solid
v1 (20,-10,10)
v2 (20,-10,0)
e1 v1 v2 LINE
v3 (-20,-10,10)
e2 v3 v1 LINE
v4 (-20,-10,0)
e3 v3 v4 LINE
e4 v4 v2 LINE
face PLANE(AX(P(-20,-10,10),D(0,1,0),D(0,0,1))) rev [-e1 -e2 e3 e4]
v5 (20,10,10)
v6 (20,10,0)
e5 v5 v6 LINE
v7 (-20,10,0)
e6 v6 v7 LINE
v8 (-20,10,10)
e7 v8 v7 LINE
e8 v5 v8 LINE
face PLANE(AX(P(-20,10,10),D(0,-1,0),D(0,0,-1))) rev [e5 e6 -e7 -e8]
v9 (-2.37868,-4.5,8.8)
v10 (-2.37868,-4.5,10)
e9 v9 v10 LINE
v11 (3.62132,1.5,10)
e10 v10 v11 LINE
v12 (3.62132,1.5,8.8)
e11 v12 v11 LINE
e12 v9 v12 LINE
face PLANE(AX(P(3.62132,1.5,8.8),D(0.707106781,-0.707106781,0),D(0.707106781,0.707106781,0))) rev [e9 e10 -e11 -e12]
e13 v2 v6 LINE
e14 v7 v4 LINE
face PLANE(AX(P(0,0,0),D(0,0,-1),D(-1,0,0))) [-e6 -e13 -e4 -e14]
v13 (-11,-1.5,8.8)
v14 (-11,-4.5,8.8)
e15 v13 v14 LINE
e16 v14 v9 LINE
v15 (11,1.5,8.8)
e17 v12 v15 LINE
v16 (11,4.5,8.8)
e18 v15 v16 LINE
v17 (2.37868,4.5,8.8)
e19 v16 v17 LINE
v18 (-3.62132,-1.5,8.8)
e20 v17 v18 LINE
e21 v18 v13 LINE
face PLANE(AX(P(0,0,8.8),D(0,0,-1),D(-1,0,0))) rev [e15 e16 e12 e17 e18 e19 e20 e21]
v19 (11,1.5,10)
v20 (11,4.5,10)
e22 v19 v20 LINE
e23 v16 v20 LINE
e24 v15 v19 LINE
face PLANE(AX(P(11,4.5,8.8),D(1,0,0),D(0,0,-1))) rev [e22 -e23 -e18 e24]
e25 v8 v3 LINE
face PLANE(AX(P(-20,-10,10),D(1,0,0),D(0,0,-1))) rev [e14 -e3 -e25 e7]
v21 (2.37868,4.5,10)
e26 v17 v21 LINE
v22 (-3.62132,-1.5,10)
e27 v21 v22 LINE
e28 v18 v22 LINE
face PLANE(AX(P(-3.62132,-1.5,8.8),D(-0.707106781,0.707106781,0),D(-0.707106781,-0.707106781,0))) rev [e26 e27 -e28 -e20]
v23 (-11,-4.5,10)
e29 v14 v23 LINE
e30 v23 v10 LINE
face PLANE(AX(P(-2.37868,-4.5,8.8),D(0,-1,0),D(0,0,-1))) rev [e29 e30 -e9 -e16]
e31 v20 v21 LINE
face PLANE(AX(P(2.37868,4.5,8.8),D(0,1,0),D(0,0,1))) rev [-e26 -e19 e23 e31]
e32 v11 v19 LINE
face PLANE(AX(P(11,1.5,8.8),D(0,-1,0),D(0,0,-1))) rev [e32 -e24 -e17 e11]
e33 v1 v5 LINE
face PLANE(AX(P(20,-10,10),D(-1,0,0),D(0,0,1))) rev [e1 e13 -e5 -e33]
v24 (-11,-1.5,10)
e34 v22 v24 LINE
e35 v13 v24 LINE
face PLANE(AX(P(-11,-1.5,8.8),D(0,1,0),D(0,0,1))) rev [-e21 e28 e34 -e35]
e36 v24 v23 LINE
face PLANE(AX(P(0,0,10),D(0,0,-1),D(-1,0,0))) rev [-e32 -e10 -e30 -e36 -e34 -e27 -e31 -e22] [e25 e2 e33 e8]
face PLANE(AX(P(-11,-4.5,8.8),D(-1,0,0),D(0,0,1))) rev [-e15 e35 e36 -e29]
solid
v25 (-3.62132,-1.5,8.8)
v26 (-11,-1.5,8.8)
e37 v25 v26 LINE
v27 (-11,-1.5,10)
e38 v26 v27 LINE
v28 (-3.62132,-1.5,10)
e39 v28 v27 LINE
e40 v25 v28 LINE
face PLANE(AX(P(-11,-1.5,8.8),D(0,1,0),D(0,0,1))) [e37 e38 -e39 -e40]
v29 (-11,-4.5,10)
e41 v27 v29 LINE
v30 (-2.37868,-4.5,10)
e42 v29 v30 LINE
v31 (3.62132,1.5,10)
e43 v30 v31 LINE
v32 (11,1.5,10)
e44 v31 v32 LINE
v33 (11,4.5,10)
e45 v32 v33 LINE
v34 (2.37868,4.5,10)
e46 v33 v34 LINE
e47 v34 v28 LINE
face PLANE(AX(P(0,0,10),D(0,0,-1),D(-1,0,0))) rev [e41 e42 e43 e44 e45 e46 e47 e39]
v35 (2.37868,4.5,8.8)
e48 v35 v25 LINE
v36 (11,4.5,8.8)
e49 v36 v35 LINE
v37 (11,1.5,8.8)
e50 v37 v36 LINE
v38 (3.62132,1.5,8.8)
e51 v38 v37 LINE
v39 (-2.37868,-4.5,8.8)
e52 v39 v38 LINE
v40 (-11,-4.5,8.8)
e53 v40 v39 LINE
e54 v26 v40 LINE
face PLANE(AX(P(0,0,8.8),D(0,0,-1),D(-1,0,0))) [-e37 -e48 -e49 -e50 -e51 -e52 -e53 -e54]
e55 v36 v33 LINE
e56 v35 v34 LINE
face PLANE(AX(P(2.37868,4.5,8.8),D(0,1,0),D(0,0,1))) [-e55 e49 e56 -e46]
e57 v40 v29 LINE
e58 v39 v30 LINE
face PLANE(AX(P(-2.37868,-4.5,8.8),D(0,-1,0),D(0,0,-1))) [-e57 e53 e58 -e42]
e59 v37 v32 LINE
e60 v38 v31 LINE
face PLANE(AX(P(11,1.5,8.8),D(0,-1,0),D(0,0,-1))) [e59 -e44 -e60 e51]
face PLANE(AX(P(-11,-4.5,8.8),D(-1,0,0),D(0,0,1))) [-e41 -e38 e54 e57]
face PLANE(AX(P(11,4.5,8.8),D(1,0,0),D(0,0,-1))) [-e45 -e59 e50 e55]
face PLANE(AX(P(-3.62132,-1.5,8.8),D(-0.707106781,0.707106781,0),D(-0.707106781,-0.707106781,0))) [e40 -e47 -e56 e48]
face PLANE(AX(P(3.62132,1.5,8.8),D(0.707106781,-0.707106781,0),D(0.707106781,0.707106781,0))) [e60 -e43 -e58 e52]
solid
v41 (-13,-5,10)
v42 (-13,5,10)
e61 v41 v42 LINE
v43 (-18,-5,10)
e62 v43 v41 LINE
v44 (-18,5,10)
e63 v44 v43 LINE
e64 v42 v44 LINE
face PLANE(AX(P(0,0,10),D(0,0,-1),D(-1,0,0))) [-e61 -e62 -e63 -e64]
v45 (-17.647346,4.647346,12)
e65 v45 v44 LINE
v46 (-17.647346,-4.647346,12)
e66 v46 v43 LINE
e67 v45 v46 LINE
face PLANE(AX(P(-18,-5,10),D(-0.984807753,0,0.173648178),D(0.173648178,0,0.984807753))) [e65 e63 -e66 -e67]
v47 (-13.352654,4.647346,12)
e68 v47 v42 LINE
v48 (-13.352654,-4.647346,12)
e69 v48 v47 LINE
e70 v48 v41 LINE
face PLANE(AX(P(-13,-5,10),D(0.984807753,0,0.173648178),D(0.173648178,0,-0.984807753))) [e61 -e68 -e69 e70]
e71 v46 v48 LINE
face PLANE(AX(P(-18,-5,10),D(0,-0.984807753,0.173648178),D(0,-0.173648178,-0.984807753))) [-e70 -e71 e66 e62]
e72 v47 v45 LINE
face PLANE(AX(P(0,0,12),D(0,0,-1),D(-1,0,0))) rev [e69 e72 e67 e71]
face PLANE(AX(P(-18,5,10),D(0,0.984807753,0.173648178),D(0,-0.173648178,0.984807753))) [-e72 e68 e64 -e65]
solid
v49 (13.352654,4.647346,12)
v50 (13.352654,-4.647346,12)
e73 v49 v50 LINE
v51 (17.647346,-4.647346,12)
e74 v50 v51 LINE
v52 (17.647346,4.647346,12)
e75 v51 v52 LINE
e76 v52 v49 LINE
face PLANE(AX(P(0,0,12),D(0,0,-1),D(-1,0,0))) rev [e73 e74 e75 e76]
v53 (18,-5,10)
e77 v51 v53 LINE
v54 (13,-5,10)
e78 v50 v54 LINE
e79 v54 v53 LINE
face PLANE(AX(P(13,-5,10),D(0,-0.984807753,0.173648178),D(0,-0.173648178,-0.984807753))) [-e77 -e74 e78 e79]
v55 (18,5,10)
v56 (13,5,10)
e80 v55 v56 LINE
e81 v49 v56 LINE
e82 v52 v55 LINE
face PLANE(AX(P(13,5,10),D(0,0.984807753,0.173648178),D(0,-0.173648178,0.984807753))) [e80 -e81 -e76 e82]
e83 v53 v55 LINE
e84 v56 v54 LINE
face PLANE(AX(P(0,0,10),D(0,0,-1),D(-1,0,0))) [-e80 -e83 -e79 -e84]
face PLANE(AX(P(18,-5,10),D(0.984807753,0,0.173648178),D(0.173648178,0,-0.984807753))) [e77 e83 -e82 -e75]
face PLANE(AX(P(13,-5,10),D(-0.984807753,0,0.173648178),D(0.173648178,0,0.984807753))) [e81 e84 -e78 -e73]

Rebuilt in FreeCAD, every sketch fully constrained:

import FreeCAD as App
import Part
import Sketcher
Q = App.Units.Quantity


def faces_at(feature, points):
    """Names of the faces that lie closest to the given points."""
    faces = feature.Shape.Faces
    near = lambda p: min(range(len(faces)), key=lambda i: faces[i].distToShape(Part.Vertex(*p))[0])
    return sorted({f"Face{near(p) + 1}" for p in points})

doc = App.newDocument("Part")
body = doc.addObject("PartDesign::Body", "Body")

sketch1 = doc.addObject("Sketcher::SketchObject", "Sketch")
body.addObject(sketch1)
sketch1.AttachmentSupport = (doc.XY_Plane, [""])
sketch1.MapMode = "FlatFace"
sketch1.addGeometry([
    Part.LineSegment(App.Vector(-20, 10, 0), App.Vector(-20, -10, 0)),
    Part.LineSegment(App.Vector(-20, -10, 0), App.Vector(20, -10, 0)),
    Part.LineSegment(App.Vector(20, -10, 0), App.Vector(20, 10, 0)),
    Part.LineSegment(App.Vector(20, 10, 0), App.Vector(-20, 10, 0)),
], False)
sketch1.addConstraint([
    Sketcher.Constraint("Coincident", 0, 2, 1, 1),
    Sketcher.Constraint("Coincident", 1, 2, 2, 1),
    Sketcher.Constraint("Coincident", 2, 2, 3, 1),
    Sketcher.Constraint("Coincident", 3, 2, 0, 1),
    Sketcher.Constraint("Vertical", 0),
    Sketcher.Constraint("Horizontal", 1),
    Sketcher.Constraint("Vertical", 2),
    Sketcher.Constraint("Horizontal", 3),
    Sketcher.Constraint("Symmetric", 0, 2, 2, 2, -1, 1),
    Sketcher.Constraint("DistanceX", 1, 1, 1, 2, 40.0),
    Sketcher.Constraint("DistanceY", 0, 2, 0, 1, 20.0),
])
pad1 = doc.addObject("PartDesign::Pad", "Pad")
body.addObject(pad1)
pad1.Profile = sketch1
pad1.Length = 10

sketch2 = doc.addObject("Sketcher::SketchObject", "Sketch001")
body.addObject(sketch2)
sketch2.AttachmentSupport = (doc.XY_Plane, [""])
sketch2.MapMode = "FlatFace"
sketch2.AttachmentOffset = App.Placement(App.Vector(0, 0, 10), App.Rotation())
sketch2.addGeometry([
    Part.LineSegment(App.Vector(2.4, 4.5, 0), App.Vector(-3.6, -1.5, 0)),
    Part.LineSegment(App.Vector(-3.6, -1.5, 0), App.Vector(-11, -1.5, 0)),
    Part.LineSegment(App.Vector(-11, -1.5, 0), App.Vector(-11, -4.5, 0)),
    Part.LineSegment(App.Vector(-11, -4.5, 0), App.Vector(-2.4, -4.5, 0)),
    Part.LineSegment(App.Vector(-2.4, -4.5, 0), App.Vector(3.6, 1.5, 0)),
    Part.LineSegment(App.Vector(3.6, 1.5, 0), App.Vector(11, 1.5, 0)),
    Part.LineSegment(App.Vector(11, 1.5, 0), App.Vector(11, 4.5, 0)),
    Part.LineSegment(App.Vector(11, 4.5, 0), App.Vector(2.4, 4.5, 0)),
], False)
sketch2.addConstraint([
    Sketcher.Constraint("Coincident", 0, 2, 1, 1),
    Sketcher.Constraint("Coincident", 1, 2, 2, 1),
    Sketcher.Constraint("Coincident", 2, 2, 3, 1),
    Sketcher.Constraint("Coincident", 3, 2, 4, 1),
    Sketcher.Constraint("Coincident", 4, 2, 5, 1),
    Sketcher.Constraint("Coincident", 5, 2, 6, 1),
    Sketcher.Constraint("Coincident", 6, 2, 7, 1),
    Sketcher.Constraint("Coincident", 7, 2, 0, 1),
    Sketcher.Constraint("Horizontal", 1),
    Sketcher.Constraint("Vertical", 2),
    Sketcher.Constraint("Horizontal", 3),
    Sketcher.Constraint("Horizontal", 5),
    Sketcher.Constraint("Vertical", 6),
    Sketcher.Constraint("Horizontal", 7),
    Sketcher.Constraint("Symmetric", 0, 2, 4, 2, -1, 1),
    Sketcher.Constraint("Symmetric", 2, 2, 6, 2, -1, 1),
    Sketcher.Constraint("Parallel", 0, 4),
    Sketcher.Constraint("DistanceY", 2, 2, 2, 1, 3.0),
    Sketcher.Constraint("Angle", 0, Q("-135 deg")),
    Sketcher.Constraint("DistanceX", 1, 2, -1, 1, 11.0),
    Sketcher.Constraint("DistanceY", 0, 2, 4, 2, 3.0),
    Sketcher.Constraint("DistanceX", 1, 2, 1, 1, 7.37868),
])
pocket1 = doc.addObject("PartDesign::Pocket", "Pocket")
body.addObject(pocket1)
pocket1.Profile = sketch2
pocket1.Length = 1.2
body2 = doc.addObject("PartDesign::Body", "Body001")

sketch3 = doc.addObject("Sketcher::SketchObject", "Sketch002")
body2.addObject(sketch3)
sketch3.AttachmentSupport = (doc.getObject("XY_Plane001"), [""])
sketch3.MapMode = "FlatFace"
sketch3.AttachmentOffset = App.Placement(App.Vector(0, 0, 10), App.Rotation())
sketch3.addGeometry([
    Part.LineSegment(App.Vector(2.4, 4.5, 0), App.Vector(-3.6, -1.5, 0)),
    Part.LineSegment(App.Vector(-3.6, -1.5, 0), App.Vector(-11, -1.5, 0)),
    Part.LineSegment(App.Vector(-11, -1.5, 0), App.Vector(-11, -4.5, 0)),
    Part.LineSegment(App.Vector(-11, -4.5, 0), App.Vector(-2.4, -4.5, 0)),
    Part.LineSegment(App.Vector(-2.4, -4.5, 0), App.Vector(3.6, 1.5, 0)),
    Part.LineSegment(App.Vector(3.6, 1.5, 0), App.Vector(11, 1.5, 0)),
    Part.LineSegment(App.Vector(11, 1.5, 0), App.Vector(11, 4.5, 0)),
    Part.LineSegment(App.Vector(11, 4.5, 0), App.Vector(2.4, 4.5, 0)),
], False)
sketch3.addConstraint([
    Sketcher.Constraint("Coincident", 0, 2, 1, 1),
    Sketcher.Constraint("Coincident", 1, 2, 2, 1),
    Sketcher.Constraint("Coincident", 2, 2, 3, 1),
    Sketcher.Constraint("Coincident", 3, 2, 4, 1),
    Sketcher.Constraint("Coincident", 4, 2, 5, 1),
    Sketcher.Constraint("Coincident", 5, 2, 6, 1),
    Sketcher.Constraint("Coincident", 6, 2, 7, 1),
    Sketcher.Constraint("Coincident", 7, 2, 0, 1),
    Sketcher.Constraint("Horizontal", 1),
    Sketcher.Constraint("Vertical", 2),
    Sketcher.Constraint("Horizontal", 3),
    Sketcher.Constraint("Horizontal", 5),
    Sketcher.Constraint("Vertical", 6),
    Sketcher.Constraint("Horizontal", 7),
    Sketcher.Constraint("Symmetric", 0, 2, 4, 2, -1, 1),
    Sketcher.Constraint("Symmetric", 2, 2, 6, 2, -1, 1),
    Sketcher.Constraint("Parallel", 0, 4),
    Sketcher.Constraint("DistanceY", 2, 2, 2, 1, 3.0),
    Sketcher.Constraint("Angle", 0, Q("-135 deg")),
    Sketcher.Constraint("DistanceX", 1, 2, -1, 1, 11.0),
    Sketcher.Constraint("DistanceY", 0, 2, 4, 2, 3.0),
    Sketcher.Constraint("DistanceX", 1, 2, 1, 1, 7.37868),
])
pad2 = doc.addObject("PartDesign::Pad", "Pad001")
body2.addObject(pad2)
pad2.Profile = sketch3
pad2.Length = 1.2
pad2.Reversed = True
body3 = doc.addObject("PartDesign::Body", "Body002")

sketch4 = doc.addObject("Sketcher::SketchObject", "Sketch003")
body3.addObject(sketch4)
sketch4.AttachmentSupport = (doc.getObject("XY_Plane002"), [""])
sketch4.MapMode = "FlatFace"
sketch4.AttachmentOffset = App.Placement(App.Vector(0, 0, 10), App.Rotation())
sketch4.addGeometry([
    Part.LineSegment(App.Vector(-18, 5, 0), App.Vector(-18, -5, 0)),
    Part.LineSegment(App.Vector(-18, -5, 0), App.Vector(-13, -5, 0)),
    Part.LineSegment(App.Vector(-13, -5, 0), App.Vector(-13, 5, 0)),
    Part.LineSegment(App.Vector(-13, 5, 0), App.Vector(-18, 5, 0)),
], False)
sketch4.addConstraint([
    Sketcher.Constraint("Coincident", 0, 2, 1, 1),
    Sketcher.Constraint("Coincident", 1, 2, 2, 1),
    Sketcher.Constraint("Coincident", 2, 2, 3, 1),
    Sketcher.Constraint("Coincident", 3, 2, 0, 1),
    Sketcher.Constraint("Vertical", 0),
    Sketcher.Constraint("Horizontal", 1),
    Sketcher.Constraint("Vertical", 2),
    Sketcher.Constraint("Horizontal", 3),
    Sketcher.Constraint("DistanceX", 1, 1, 1, 2, 5.0),
    Sketcher.Constraint("DistanceY", 0, 2, 0, 1, 10.0),
    Sketcher.Constraint("DistanceX", 0, 2, -1, 1, 18.0),
    Sketcher.Constraint("DistanceY", 0, 2, -1, 1, 5.0),
])
pad3 = doc.addObject("PartDesign::Pad", "Pad002")
body3.addObject(pad3)
pad3.Profile = sketch4
pad3.Length = 2
doc.recompute()

datumplane = doc.addObject("PartDesign::Plane", "DatumPlane")
body3.addObject(datumplane)
datumplane.AttachmentSupport = (doc.getObject("XY_Plane002"), [""])
datumplane.MapMode = "FlatFace"
datumplane.AttachmentOffset = App.Placement(App.Vector(0, 0, 10), App.Rotation())
draft = doc.addObject("PartDesign::Draft", "Draft")
body3.addObject(draft)
draft.Base = (pad3, faces_at(pad3, [
    (-15.5, -5, 11),
    (-13, 0, 11),
    (-15.5, 5, 11),
    (-18, 0, 11),
]))
draft.NeutralPlane = (datumplane, [""])
draft.Angle = 10
draft.Reversed = False
body4 = doc.addObject("PartDesign::Body", "Body003")

sketch5 = doc.addObject("Sketcher::SketchObject", "Sketch004")
body4.addObject(sketch5)
sketch5.AttachmentSupport = (doc.getObject("XY_Plane003"), [""])
sketch5.MapMode = "FlatFace"
sketch5.AttachmentOffset = App.Placement(App.Vector(0, 0, 10), App.Rotation())
sketch5.addGeometry([
    Part.LineSegment(App.Vector(13, 5, 0), App.Vector(13, -5, 0)),
    Part.LineSegment(App.Vector(13, -5, 0), App.Vector(18, -5, 0)),
    Part.LineSegment(App.Vector(18, -5, 0), App.Vector(18, 5, 0)),
    Part.LineSegment(App.Vector(18, 5, 0), App.Vector(13, 5, 0)),
], False)
sketch5.addConstraint([
    Sketcher.Constraint("Coincident", 0, 2, 1, 1),
    Sketcher.Constraint("Coincident", 1, 2, 2, 1),
    Sketcher.Constraint("Coincident", 2, 2, 3, 1),
    Sketcher.Constraint("Coincident", 3, 2, 0, 1),
    Sketcher.Constraint("Vertical", 0),
    Sketcher.Constraint("Horizontal", 1),
    Sketcher.Constraint("Vertical", 2),
    Sketcher.Constraint("Horizontal", 3),
    Sketcher.Constraint("DistanceX", 1, 1, 1, 2, 5.0),
    Sketcher.Constraint("DistanceY", 0, 2, 0, 1, 10.0),
    Sketcher.Constraint("DistanceX", -1, 1, 0, 2, 13.0),
    Sketcher.Constraint("DistanceY", 0, 2, -1, 1, 5.0),
])
pad4 = doc.addObject("PartDesign::Pad", "Pad003")
body4.addObject(pad4)
pad4.Profile = sketch5
pad4.Length = 2
doc.recompute()

datumplane2 = doc.addObject("PartDesign::Plane", "DatumPlane001")
body4.addObject(datumplane2)
datumplane2.AttachmentSupport = (doc.getObject("XY_Plane003"), [""])
datumplane2.MapMode = "FlatFace"
datumplane2.AttachmentOffset = App.Placement(App.Vector(0, 0, 10), App.Rotation())
draft2 = doc.addObject("PartDesign::Draft", "Draft001")
body4.addObject(draft2)
draft2.Base = (pad4, faces_at(pad4, [
    (15.5, -5, 11),
    (18, 0, 11),
    (15.5, 5, 11),
    (13, 0, 11),
]))
draft2.NeutralPlane = (datumplane2, [""])
draft2.Angle = 10
draft2.Reversed = False

doc.recompute()
